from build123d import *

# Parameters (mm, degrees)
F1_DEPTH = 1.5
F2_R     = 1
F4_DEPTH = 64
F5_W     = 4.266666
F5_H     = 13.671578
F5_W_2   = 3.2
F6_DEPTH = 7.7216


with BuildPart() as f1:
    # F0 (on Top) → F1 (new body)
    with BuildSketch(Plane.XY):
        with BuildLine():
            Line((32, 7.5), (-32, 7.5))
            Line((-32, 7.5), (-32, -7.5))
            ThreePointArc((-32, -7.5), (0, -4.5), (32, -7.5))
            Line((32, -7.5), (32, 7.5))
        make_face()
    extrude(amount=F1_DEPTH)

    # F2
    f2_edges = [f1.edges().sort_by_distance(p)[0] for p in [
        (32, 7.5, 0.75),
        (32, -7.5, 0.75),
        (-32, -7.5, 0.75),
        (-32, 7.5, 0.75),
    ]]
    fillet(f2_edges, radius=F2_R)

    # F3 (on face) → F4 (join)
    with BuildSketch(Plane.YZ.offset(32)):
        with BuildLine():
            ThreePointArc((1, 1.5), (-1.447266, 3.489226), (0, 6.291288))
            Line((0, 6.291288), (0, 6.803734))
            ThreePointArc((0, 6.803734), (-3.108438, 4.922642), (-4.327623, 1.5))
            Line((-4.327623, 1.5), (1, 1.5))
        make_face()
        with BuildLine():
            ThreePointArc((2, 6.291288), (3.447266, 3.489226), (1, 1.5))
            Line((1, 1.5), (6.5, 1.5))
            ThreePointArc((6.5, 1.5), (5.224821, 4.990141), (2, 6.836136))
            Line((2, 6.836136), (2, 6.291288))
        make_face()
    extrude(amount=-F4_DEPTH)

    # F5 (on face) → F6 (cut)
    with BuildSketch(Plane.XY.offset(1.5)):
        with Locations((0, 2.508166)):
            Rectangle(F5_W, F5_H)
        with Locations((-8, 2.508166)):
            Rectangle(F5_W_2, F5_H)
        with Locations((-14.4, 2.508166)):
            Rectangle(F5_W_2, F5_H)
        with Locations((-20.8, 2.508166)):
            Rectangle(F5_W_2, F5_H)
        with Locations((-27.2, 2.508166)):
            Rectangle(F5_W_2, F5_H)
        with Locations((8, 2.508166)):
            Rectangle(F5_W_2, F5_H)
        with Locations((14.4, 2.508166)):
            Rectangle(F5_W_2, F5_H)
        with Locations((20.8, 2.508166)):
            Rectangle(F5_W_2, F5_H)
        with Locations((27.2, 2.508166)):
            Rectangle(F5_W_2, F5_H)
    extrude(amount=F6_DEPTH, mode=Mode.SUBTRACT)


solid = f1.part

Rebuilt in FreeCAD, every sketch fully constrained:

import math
import FreeCAD as App
import Part
import Sketcher
Q = App.Units.Quantity


def edges_at(feature, points):
    """Names of the edges that pass closest to the given points."""
    edges = feature.Shape.Edges
    near = lambda p: min(range(len(edges)), key=lambda i: edges[i].distToShape(Part.Vertex(*p))[0])
    return sorted({f"Edge{near(p) + 1}" for p in points})


def add_polygon(sketch, points):
    """Adds a closed chain of lines whose ends are joined by coincident constraints."""
    first, n = sketch.GeometryCount, len(points)
    for a, b in zip(points, points[1:] + points[:1]):
        sketch.addGeometry(Part.LineSegment(App.Vector(*a, 0), App.Vector(*b, 0)), False)
    for i in range(n):
        sketch.addConstraint(Sketcher.Constraint("Coincident", first + i, 2, first + (i + 1) % n, 1))

doc = App.newDocument("Part")
params = doc.addObject("Spreadsheet::Sheet", "Params")
for row, (alias, value) in enumerate([
    ("sketch1_width", "64 mm"),
    ("sketch1_height", "15 mm"),
    ("pad1_length", "1.5 mm"),
    ("fillet_radius", "1 mm"),
    ("sketch2_radius", "2.5 mm"),
    ("sketch2_width", "5.5 mm"),
    ("pad2_length", "64 mm"),
    ("sketch3_width", "3.2 mm"),
    ("pocket1_length", "7.7216 mm"),
], start=1):
    params.set(f"A{row}", alias)
    params.set(f"B{row}", "=" + value)
    params.setAlias(f"B{row}", alias)

body = doc.addObject("PartDesign::Body", "Body")

# Sketch on XY plane
sketch1 = body.newObject("Sketcher::SketchObject", "Sketch")
sketch1.AttachmentSupport = (doc.getObject("XY_Plane"), [""])
sketch1.MapMode = "FlatFace"
sketch1.addGeometry([
    Part.LineSegment(App.Vector(32, 7.5, 0), App.Vector(-32, 7.5, 0)),
    Part.LineSegment(App.Vector(-32, 7.5, 0), App.Vector(-32, -7.5, 0)),
    Part.ArcOfCircle(Part.Circle(App.Vector(0, -176.666667, 0), App.Vector(0, 0, 1), 172.166667), math.radians(79.28835), math.radians(100.71165)),
    Part.LineSegment(App.Vector(32, -7.5, 0), App.Vector(32, 7.5, 0)),
], False)
sketch1.addConstraint([
    Sketcher.Constraint("Coincident", 0, 2, 1, 1),
    Sketcher.Constraint("Coincident", 1, 2, 2, 2),
    Sketcher.Constraint("Coincident", 2, 1, 3, 1),
    Sketcher.Constraint("Coincident", 3, 2, 0, 1),
    Sketcher.Constraint("Horizontal", 0),
    Sketcher.Constraint("Vertical", 1),
    Sketcher.Constraint("Vertical", 3),
    Sketcher.Constraint("Symmetric", 0, 2, 2, 1, -1, 1),
    Sketcher.Constraint("PointOnObject", 2, 3, -2),
    Sketcher.Constraint("DistanceX", 0, 2, 0, 1, Q("64 mm")),
    Sketcher.Constraint("DistanceY", 1, 2, 1, 1, Q("15 mm")),
    Sketcher.Constraint("Radius", 2, Q("172.166667 mm")),
])
sketch1.setExpression("Constraints[9]", "Params.sketch1_width")
sketch1.setExpression("Constraints[10]", "Params.sketch1_height")
pad1 = body.newObject("PartDesign::Pad", "Pad")
pad1.Profile = sketch1
pad1.setExpression("Length", "Params.pad1_length")
doc.recompute()

fillet = body.newObject("PartDesign::Fillet", "Fillet")
fillet.Base = (pad1, edges_at(pad1, [
    (32, 7.5, 0.75),
    (32, -7.5, 0.75),
    (-32, -7.5, 0.75),
    (-32, 7.5, 0.75),
]))
fillet.setExpression("Radius", "Params.fillet_radius")

# Sketch on YZ plane
sketch2 = body.newObject("Sketcher::SketchObject", "Sketch001")
sketch2.AttachmentSupport = (doc.getObject("YZ_Plane"), [""])
sketch2.MapMode = "FlatFace"
sketch2.AttachmentOffset = App.Placement(App.Vector(0, 0, 32), App.Rotation())
sketch2.addGeometry([
    Part.ArcOfCircle(Part.Circle(App.Vector(1, 4, 0), App.Vector(0, 0, 1), 2.5), math.radians(113.578174), math.radians(270.000004)),  # 0
    Part.LineSegment(App.Vector(0, 6.291288, 0), App.Vector(0, 6.803734, 0)),  # 1
    Part.ArcOfCircle(Part.Circle(App.Vector(1.086193, 1.500001, 0), App.Vector(0, 0, 1), 5.413816), math.radians(101.574008), math.radians(180.000006)),  # 2
    Part.LineSegment(App.Vector(-4.327623, 1.5, 0), App.Vector(1, 1.5, 0)),  # 3
    Part.ArcOfCircle(Part.Circle(App.Vector(1, 4, 0), App.Vector(0, 0, 1), 2.5), math.radians(-90.000004), math.radians(66.421826)),  # 4
    Part.LineSegment(App.Vector(1, 1.5, 0), App.Vector(6.5, 1.5, 0)),  # 5
    Part.ArcOfCircle(Part.Circle(App.Vector(1.086182, 1.499999, 0), App.Vector(0, 0, 1), 5.413818), math.radians(0.000011), math.radians(80.282317)),  # 6
    Part.LineSegment(App.Vector(2, 6.836136, 0), App.Vector(2, 6.291288, 0)),  # 7
], False)
sketch2.addConstraint([
    Sketcher.Constraint("Coincident", 0, 1, 1, 1),
    Sketcher.Constraint("Coincident", 1, 2, 2, 1),
    Sketcher.Constraint("Coincident", 2, 2, 3, 1),
    Sketcher.Constraint("Tangent", 3, 2, 0, 2),
    Sketcher.Constraint("Tangent", 4, 1, 5, 1),
    Sketcher.Constraint("Coincident", 5, 2, 6, 1),
    Sketcher.Constraint("Coincident", 6, 2, 7, 1),
    Sketcher.Constraint("Coincident", 7, 2, 4, 2),
    Sketcher.Constraint("Vertical", 1),
    Sketcher.Constraint("Horizontal", 3),
    Sketcher.Constraint("Horizontal", 5),
    Sketcher.Constraint("Vertical", 7),
    Sketcher.Constraint("Coincident", 4, 3, 0, 3),
    Sketcher.Constraint("Equal", 0, 4),
    Sketcher.Constraint("Equal", 2, 6),
    Sketcher.Constraint("PointOnObject", 0, 1, -2),
    Sketcher.Constraint("Horizontal", 2, 3, 6, 3),
    Sketcher.Constraint("Horizontal", 6, 3, 2, 2),
    Sketcher.Constraint("Horizontal", 0, 1, 7, 2),
    Sketcher.Constraint("Radius", 0, Q("2.5 mm")),
    Sketcher.Constraint("DistanceX", 5, 1, 5, 2, Q("5.5 mm")),
    Sketcher.Constraint("DistanceX", -1, 1, 0, 3, Q("1 mm")),
    Sketcher.Constraint("DistanceY", -1, 1, 0, 3, Q("4 mm")),
    Sketcher.Constraint("Radius", 2, Q("5.413816 mm")),
    Sketcher.Constraint("DistanceX", 3, 1, 3, 2, Q("5.327623 mm")),
])
sketch2.setExpression("Constraints[19]", "Params.sketch2_radius")
sketch2.setExpression("Constraints[20]", "Params.sketch2_width")
pad2 = body.newObject("PartDesign::Pad", "Pad001")
pad2.Profile = sketch2
pad2.setExpression("Length", "Params.pad2_length")
pad2.Reversed = True

# Sketch on XY plane
sketch3 = body.newObject("Sketcher::SketchObject", "Sketch002")
sketch3.AttachmentSupport = (doc.getObject("XY_Plane"), [""])
sketch3.MapMode = "FlatFace"
sketch3.AttachmentOffset = App.Placement(App.Vector(0, 0, 1.5), App.Rotation())
add_polygon(sketch3, [(-2.133333, 9.343955), (-2.133333, -4.327623), (2.133333, -4.327623), (2.133333, 9.343955)])  # lines 0-3
add_polygon(sketch3, [(-9.6, 9.343955), (-9.6, -4.327623), (-6.4, -4.327623), (-6.4, 9.343955)])  # lines 4-7
add_polygon(sketch3, [(-16, 9.343955), (-16, -4.327623), (-12.8, -4.327623), (-12.8, 9.343955)])  # lines 8-11
add_polygon(sketch3, [(-22.4, 9.343955), (-22.4, -4.327623), (-19.2, -4.327623), (-19.2, 9.343955)])  # lines 12-15
add_polygon(sketch3, [(-28.8, 9.343955), (-28.8, -4.327623), (-25.6, -4.327623), (-25.6, 9.343955)])  # lines 16-19
add_polygon(sketch3, [(6.4, 9.343955), (6.4, -4.327623), (9.6, -4.327623), (9.6, 9.343955)])  # lines 20-23
add_polygon(sketch3, [(12.8, 9.343955), (12.8, -4.327623), (16, -4.327623), (16, 9.343955)])  # lines 24-27
add_polygon(sketch3, [(19.2, 9.343955), (19.2, -4.327623), (22.4, -4.327623), (22.4, 9.343955)])  # lines 28-31
add_polygon(sketch3, [(25.6, 9.343955), (25.6, -4.327623), (28.8, -4.327623), (28.8, 9.343955)])  # lines 32-35
sketch3.addConstraint([
    Sketcher.Constraint("Vertical", 0),
    Sketcher.Constraint("Horizontal", 1),
    Sketcher.Constraint("Vertical", 2),
    Sketcher.Constraint("Horizontal", 3),
    Sketcher.Constraint("Vertical", 4),
    Sketcher.Constraint("Horizontal", 5),
    Sketcher.Constraint("Vertical", 6),
    Sketcher.Constraint("Horizontal", 7),
    Sketcher.Constraint("Vertical", 8),
    Sketcher.Constraint("Horizontal", 9),
    Sketcher.Constraint("Vertical", 10),
    Sketcher.Constraint("Horizontal", 11),
    Sketcher.Constraint("Vertical", 12),
    Sketcher.Constraint("Horizontal", 13),
    Sketcher.Constraint("Vertical", 14),
    Sketcher.Constraint("Horizontal", 15),
    Sketcher.Constraint("Vertical", 16),
    Sketcher.Constraint("Horizontal", 17),
    Sketcher.Constraint("Vertical", 18),
    Sketcher.Constraint("Horizontal", 19),
    Sketcher.Constraint("Vertical", 20),
    Sketcher.Constraint("Horizontal", 21),
    Sketcher.Constraint("Vertical", 22),
    Sketcher.Constraint("Horizontal", 23),
    Sketcher.Constraint("Vertical", 24),
    Sketcher.Constraint("Horizontal", 25),
    Sketcher.Constraint("Vertical", 26),
    Sketcher.Constraint("Horizontal", 27),
    Sketcher.Constraint("Vertical", 28),
    Sketcher.Constraint("Horizontal", 29),
    Sketcher.Constraint("Vertical", 30),
    Sketcher.Constraint("Horizontal", 31),
    Sketcher.Constraint("Vertical", 32),
    Sketcher.Constraint("Horizontal", 33),
    Sketcher.Constraint("Vertical", 34),
    Sketcher.Constraint("Horizontal", 35),
    Sketcher.Constraint("Symmetric", 5, 2, 20, 2, -2),
    Sketcher.Constraint("Symmetric", 7, 2, 22, 2, -2),
    Sketcher.Constraint("Symmetric", 9, 2, 24, 2, -2),
    Sketcher.Constraint("Symmetric", 11, 2, 26, 2, -2),
    Sketcher.Constraint("Symmetric", 13, 2, 28, 2, -2),
    Sketcher.Constraint("Symmetric", 15, 2, 30, 2, -2),
    Sketcher.Constraint("Symmetric", 17, 2, 32, 2, -2),
    Sketcher.Constraint("Symmetric", 19, 2, 34, 2, -2),
    Sketcher.Constraint("Horizontal", 1, 2, 4, 2),
    Sketcher.Constraint("Horizontal", 3, 2, 6, 2),
    Sketcher.Constraint("Horizontal", 5, 2, 8, 2),
    Sketcher.Constraint("Horizontal", 7, 2, 10, 2),
    Sketcher.Constraint("Horizontal", 9, 2, 12, 2),
    Sketcher.Constraint("Horizontal", 11, 2, 14, 2),
    Sketcher.Constraint("Horizontal", 13, 2, 16, 2),
    Sketcher.Constraint("Horizontal", 15, 2, 18, 2),
    Sketcher.Constraint("Equal", 7, 9),
    Sketcher.Constraint("Equal", 11, 13),
    Sketcher.Constraint("Equal", 15, 17),
    Sketcher.Constraint("DistanceX", 5, 1, 5, 2, Q("3.2 mm")),
    Sketcher.Constraint("DistanceX", 8, 2, -1, 1, Q("16 mm")),
    Sketcher.Constraint("DistanceX", 12, 2, 5, 2, Q("16 mm")),
    Sketcher.Constraint("DistanceX", 16, 2, 9, 2, Q("16 mm")),
    Sketcher.Constraint("DistanceX", 4, 2, 20, 2, Q("16 mm")),
    Sketcher.Constraint("DistanceX", 1, 1, 1, 2, Q("4.266666 mm")),
    Sketcher.Constraint("DistanceY", 0, 2, 0, 1, Q("13.671578 mm")),
    Sketcher.Constraint("DistanceX", 0, 2, -1, 1, Q("2.133333 mm")),
    Sketcher.Constraint("DistanceY", 0, 2, -1, 1, Q("4.327623 mm")),
])
sketch3.setExpression("Constraints[91]", "Params.sketch3_width")
pocket1 = body.newObject("PartDesign::Pocket", "Pocket")
pocket1.Profile = sketch3
pocket1.setExpression("Length", "Params.pocket1_length")
pocket1.Reversed = True

doc.recompute()
